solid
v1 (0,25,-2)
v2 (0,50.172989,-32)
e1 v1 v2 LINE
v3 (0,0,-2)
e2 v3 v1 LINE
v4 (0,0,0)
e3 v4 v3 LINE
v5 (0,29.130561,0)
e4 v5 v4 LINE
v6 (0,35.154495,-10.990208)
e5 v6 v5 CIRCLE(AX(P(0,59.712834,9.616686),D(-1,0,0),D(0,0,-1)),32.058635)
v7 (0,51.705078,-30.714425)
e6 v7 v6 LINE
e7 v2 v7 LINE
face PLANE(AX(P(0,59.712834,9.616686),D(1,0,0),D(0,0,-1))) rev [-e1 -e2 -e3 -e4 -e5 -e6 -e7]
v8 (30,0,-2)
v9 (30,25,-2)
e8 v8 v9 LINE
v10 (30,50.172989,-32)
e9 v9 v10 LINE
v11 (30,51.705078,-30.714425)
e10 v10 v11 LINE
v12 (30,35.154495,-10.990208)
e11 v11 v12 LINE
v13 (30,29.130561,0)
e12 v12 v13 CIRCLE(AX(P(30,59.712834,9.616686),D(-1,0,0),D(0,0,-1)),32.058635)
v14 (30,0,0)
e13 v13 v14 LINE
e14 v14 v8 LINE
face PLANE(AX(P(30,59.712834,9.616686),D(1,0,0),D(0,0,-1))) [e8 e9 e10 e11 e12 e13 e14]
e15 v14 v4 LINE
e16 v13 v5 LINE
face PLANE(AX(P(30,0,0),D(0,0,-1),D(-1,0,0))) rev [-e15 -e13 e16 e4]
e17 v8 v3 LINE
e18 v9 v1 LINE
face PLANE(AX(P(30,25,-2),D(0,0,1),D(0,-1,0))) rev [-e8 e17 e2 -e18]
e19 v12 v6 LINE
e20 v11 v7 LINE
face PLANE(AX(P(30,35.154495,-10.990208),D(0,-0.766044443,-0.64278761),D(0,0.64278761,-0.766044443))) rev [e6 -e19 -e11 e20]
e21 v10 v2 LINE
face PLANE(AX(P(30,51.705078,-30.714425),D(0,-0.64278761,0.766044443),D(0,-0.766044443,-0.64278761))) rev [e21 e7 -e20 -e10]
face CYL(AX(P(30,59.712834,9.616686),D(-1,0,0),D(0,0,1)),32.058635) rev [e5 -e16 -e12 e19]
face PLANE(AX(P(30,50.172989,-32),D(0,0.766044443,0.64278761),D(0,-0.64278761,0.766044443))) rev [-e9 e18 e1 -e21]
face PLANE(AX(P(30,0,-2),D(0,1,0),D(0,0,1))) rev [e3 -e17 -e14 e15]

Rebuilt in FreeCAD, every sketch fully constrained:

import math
import FreeCAD as App
import Part
import Sketcher
from FreeCAD import Vector
Q = App.Units.Quantity

doc = App.newDocument("Part")
body = doc.addObject("PartDesign::Body", "Body")

sketch1 = body.newObject("Sketcher::SketchObject", "Sketch")
sketch1.AttachmentSupport = (doc.getObject("YZ_Plane"), [""])
sketch1.MapMode = "FlatFace"
sketch1.addGeometry([
    Part.LineSegment(Vector(29.130561, 0, 0), Vector(0, 0, 0)),
    Part.LineSegment(Vector(0, 0, 0), Vector(0, -2, 0)),
    Part.LineSegment(Vector(0, -2, 0), Vector(25, -2, 0)),
    Part.LineSegment(Vector(25, -2, 0), Vector(50.172989, -32, 0)),
    Part.LineSegment(Vector(50.172989, -32, 0), Vector(51.705078, -30.714425, 0)),
    Part.LineSegment(Vector(51.705078, -30.714425, 0), Vector(35.154495, -10.990208, 0)),
    Part.ArcOfCircle(Part.Circle(Vector(59.712834, 9.616686, 0), Vector(0, 0, 1), 32.058635), math.radians(-162.544092), math.radians(-140)),
], False)
sketch1.addConstraint([
    Sketcher.Constraint("Coincident", 0, 2, 1, 1),
    Sketcher.Constraint("Coincident", 1, 2, 2, 1),
    Sketcher.Constraint("Coincident", 2, 2, 3, 1),
    Sketcher.Constraint("Coincident", 3, 2, 4, 1),
    Sketcher.Constraint("Coincident", 4, 2, 5, 1),
    Sketcher.Constraint("Tangent", 5, 2, 6, 2),
    Sketcher.Constraint("Coincident", 6, 1, 0, 1),
    Sketcher.Constraint("Horizontal", 0),
    Sketcher.Constraint("Vertical", 1),
    Sketcher.Constraint("Horizontal", 2),
    Sketcher.Constraint("Coincident", 0, 2, -1, 1),
    Sketcher.Constraint("Perpendicular", 3, 4),
    Sketcher.Constraint("Perpendicular", 4, 5),
    Sketcher.Constraint("DistanceX", 2, 1, 2, 2, 25.0),
    Sketcher.Constraint("DistanceY", 1, 2, 1, 1, 2.0),
    Sketcher.Constraint("Angle", 3, Q("-50 deg")),
    Sketcher.Constraint("Distance", 4, 2.0),
    Sketcher.Constraint("DistanceY", 3, 2, -1, 1, 32.0),
    Sketcher.Constraint("Radius", 6, 32.058635),
    Sketcher.Constraint("DistanceX", 0, 2, 0, 1, 29.130561),
])
pad1 = body.newObject("PartDesign::Pad", "Pad")
pad1.Profile = sketch1
pad1.Length = 30

doc.recompute()
